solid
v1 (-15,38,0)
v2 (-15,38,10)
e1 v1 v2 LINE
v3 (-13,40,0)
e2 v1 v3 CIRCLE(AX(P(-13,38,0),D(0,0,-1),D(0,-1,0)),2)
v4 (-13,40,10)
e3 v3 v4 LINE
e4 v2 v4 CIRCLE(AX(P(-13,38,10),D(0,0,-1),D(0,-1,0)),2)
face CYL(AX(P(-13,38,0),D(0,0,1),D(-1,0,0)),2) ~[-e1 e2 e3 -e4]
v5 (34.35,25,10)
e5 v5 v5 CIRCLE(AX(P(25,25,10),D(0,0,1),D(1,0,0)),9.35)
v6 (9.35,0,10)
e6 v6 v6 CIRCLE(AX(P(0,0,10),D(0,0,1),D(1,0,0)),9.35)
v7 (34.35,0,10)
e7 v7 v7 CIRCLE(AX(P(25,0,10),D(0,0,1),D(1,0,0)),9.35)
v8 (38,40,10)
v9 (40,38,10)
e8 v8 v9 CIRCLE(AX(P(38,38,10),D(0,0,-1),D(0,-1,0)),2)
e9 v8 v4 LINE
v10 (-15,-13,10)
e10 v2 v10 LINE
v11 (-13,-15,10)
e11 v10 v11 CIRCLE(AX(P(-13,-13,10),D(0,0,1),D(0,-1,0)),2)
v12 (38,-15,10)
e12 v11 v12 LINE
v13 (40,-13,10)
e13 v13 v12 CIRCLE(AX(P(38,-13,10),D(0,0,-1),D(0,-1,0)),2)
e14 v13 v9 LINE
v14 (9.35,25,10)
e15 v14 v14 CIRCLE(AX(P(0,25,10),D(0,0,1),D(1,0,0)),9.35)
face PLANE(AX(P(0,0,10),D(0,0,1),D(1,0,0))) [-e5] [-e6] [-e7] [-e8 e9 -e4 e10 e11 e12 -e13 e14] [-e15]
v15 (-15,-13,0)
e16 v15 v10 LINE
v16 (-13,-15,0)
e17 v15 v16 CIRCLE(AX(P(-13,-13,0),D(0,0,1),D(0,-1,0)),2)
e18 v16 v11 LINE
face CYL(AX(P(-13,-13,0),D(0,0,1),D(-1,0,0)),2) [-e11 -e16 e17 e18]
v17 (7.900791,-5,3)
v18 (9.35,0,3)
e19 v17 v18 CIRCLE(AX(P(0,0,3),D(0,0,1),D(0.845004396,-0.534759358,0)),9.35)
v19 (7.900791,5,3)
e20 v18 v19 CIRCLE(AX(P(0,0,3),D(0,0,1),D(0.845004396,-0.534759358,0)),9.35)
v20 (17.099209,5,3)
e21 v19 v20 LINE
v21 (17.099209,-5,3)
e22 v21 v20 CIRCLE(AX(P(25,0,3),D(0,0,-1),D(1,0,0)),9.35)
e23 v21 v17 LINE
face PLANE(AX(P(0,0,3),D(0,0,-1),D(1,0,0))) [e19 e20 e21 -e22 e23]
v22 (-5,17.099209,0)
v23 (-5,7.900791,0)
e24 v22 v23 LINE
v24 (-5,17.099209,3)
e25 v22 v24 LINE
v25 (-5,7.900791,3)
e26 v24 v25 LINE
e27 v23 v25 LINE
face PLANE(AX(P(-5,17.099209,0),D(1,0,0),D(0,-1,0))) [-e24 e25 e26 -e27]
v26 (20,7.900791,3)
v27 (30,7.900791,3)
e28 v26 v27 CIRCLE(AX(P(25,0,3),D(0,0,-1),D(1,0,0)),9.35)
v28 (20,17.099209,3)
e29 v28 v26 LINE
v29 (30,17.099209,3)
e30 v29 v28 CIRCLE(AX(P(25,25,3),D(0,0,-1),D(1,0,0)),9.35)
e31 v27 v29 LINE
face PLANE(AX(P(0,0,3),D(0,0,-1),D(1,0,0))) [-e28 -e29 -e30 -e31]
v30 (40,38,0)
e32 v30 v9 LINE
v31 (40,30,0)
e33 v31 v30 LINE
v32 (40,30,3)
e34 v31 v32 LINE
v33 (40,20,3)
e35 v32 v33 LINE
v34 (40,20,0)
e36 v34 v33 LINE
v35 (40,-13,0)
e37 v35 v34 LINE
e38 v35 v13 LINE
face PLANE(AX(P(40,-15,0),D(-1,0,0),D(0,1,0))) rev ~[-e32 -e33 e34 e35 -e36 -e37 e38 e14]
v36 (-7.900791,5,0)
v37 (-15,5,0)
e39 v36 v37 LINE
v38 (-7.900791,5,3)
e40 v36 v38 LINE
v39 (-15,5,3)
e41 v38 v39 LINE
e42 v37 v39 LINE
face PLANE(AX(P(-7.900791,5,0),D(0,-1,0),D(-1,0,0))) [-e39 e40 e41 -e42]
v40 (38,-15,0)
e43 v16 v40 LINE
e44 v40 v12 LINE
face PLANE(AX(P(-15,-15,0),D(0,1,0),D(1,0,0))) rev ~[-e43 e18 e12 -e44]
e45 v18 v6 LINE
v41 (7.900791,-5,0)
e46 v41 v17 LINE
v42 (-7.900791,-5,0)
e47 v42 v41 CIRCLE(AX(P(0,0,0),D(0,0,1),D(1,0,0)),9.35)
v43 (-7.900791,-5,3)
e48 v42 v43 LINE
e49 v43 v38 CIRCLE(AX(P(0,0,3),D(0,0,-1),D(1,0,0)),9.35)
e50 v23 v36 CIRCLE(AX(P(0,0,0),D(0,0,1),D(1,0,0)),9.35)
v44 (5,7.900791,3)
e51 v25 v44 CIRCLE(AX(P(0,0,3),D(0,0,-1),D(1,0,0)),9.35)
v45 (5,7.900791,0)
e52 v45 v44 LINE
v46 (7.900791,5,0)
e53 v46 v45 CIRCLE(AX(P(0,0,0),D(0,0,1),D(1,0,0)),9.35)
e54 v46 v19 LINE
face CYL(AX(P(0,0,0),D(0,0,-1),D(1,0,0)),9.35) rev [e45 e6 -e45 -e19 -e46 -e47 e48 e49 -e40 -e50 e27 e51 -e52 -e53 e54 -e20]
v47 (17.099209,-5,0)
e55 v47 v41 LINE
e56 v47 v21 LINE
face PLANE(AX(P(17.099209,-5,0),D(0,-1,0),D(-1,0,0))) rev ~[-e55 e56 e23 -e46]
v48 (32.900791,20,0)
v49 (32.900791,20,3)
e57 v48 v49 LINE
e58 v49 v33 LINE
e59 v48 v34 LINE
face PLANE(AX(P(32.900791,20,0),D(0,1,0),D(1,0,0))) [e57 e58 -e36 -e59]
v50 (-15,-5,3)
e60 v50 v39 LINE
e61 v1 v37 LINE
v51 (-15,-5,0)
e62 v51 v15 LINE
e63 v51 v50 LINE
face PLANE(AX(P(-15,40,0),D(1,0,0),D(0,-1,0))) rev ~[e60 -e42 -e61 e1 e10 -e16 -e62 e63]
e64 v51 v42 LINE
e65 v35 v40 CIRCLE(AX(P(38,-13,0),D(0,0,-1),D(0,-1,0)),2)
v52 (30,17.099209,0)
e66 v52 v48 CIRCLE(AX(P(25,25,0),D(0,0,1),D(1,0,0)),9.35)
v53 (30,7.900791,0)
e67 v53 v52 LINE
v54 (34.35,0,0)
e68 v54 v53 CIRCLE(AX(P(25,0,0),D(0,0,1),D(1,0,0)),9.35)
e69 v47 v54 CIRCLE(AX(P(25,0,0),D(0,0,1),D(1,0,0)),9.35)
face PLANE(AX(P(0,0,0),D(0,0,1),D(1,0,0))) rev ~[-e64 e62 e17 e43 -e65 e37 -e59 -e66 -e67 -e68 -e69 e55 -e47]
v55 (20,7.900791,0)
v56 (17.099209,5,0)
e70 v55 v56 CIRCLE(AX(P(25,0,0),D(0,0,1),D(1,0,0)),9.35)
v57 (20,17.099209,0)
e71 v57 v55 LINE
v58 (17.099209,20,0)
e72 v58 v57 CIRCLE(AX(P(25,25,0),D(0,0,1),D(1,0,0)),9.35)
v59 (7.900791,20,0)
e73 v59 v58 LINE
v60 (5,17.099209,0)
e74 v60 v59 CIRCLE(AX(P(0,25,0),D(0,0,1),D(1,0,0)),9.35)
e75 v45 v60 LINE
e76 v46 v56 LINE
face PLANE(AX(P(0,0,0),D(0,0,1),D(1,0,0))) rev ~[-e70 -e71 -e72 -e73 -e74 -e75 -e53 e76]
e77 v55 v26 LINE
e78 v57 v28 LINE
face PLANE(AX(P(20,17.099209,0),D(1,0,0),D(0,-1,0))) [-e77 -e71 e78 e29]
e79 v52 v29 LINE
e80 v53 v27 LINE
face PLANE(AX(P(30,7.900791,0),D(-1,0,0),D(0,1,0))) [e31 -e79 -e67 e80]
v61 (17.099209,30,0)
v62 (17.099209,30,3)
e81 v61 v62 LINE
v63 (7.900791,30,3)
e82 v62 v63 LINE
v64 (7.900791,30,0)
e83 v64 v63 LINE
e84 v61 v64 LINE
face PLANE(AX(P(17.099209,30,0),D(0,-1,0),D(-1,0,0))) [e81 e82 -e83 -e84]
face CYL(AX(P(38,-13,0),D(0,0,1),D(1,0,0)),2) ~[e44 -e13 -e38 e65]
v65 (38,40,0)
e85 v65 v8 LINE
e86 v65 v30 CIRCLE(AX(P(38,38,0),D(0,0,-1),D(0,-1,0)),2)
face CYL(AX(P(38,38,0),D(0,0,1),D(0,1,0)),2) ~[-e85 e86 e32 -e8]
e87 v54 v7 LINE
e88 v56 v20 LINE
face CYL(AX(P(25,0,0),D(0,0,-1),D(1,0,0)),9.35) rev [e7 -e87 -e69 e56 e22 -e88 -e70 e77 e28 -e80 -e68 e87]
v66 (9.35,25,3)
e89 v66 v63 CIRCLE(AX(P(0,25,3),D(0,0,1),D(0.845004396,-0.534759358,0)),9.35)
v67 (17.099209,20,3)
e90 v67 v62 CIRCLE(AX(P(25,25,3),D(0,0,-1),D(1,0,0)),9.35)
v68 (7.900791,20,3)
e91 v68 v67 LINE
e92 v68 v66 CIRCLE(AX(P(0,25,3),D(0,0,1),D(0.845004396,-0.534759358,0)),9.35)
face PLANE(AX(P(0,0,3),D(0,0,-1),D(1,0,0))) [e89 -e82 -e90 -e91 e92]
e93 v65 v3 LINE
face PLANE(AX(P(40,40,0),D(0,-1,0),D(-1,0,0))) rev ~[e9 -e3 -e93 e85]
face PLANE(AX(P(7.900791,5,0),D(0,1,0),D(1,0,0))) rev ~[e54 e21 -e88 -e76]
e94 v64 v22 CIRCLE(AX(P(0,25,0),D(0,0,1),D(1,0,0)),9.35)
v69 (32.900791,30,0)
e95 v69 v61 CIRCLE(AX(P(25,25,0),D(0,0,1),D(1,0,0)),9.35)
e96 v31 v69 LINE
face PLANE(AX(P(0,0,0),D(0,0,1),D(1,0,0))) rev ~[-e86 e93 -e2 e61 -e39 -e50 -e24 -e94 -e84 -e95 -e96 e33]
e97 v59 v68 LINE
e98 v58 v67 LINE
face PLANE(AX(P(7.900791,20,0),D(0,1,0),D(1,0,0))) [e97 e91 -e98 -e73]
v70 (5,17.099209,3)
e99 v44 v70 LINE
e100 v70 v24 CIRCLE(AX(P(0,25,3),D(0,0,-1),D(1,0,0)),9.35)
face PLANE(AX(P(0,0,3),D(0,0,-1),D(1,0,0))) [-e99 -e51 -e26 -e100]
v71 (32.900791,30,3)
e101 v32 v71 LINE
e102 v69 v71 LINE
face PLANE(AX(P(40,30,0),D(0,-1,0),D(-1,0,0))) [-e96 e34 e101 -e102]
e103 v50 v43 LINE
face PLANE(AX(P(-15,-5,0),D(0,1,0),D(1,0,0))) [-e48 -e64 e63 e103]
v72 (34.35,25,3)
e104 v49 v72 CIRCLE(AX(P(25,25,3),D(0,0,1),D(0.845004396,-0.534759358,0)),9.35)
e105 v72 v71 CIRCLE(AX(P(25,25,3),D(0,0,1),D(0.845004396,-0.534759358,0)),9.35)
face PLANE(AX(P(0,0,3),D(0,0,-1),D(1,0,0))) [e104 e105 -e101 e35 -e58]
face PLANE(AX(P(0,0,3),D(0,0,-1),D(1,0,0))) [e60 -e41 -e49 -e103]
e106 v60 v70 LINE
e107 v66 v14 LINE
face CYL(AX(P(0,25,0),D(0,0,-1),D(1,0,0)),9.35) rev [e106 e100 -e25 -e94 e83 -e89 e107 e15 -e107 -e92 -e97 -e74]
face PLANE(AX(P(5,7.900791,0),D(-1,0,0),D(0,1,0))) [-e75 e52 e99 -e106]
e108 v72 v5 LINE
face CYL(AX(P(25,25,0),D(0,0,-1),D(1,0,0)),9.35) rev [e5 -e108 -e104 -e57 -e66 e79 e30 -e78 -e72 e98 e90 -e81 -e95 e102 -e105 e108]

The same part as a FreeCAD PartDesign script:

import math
import FreeCAD as App
import Part
import Sketcher
from FreeCAD import Vector


def edges_at(feature, points):
    """Names of the edges that pass closest to the given points."""
    edges = feature.Shape.Edges
    near = lambda p: min(range(len(edges)), key=lambda i: edges[i].distToShape(Part.Vertex(*p))[0])
    return sorted({f"Edge{near(p) + 1}" for p in points})

doc = App.newDocument("Part")
body = doc.addObject("PartDesign::Body", "Body")

# Sketch on XY plane
sketch1 = body.newObject("Sketcher::SketchObject", "Sketch")
sketch1.AttachmentSupport = (doc.getObject("XY_Plane"), [""])
sketch1.MapMode = "FlatFace"
sketch1.addGeometry([
    Part.LineSegment(Vector(-15, 40, 0), Vector(-15, -15, 0)),  # 0
    Part.LineSegment(Vector(-15, -15, 0), Vector(40, -15, 0)),  # 1
    Part.LineSegment(Vector(40, -15, 0), Vector(40, 40, 0)),  # 2
    Part.LineSegment(Vector(40, 40, 0), Vector(-15, 40, 0)),  # 3
    Part.Circle(Vector(0, 0, 0), Vector(0, 0, 1), 9.35),  # 4
    Part.Circle(Vector(25, 0, 0), Vector(0, 0, 1), 9.35),  # 5
    Part.Circle(Vector(0, 25, 0), Vector(0, 0, 1), 9.35),  # 6
    Part.Circle(Vector(25, 25, 0), Vector(0, 0, 1), 9.35),  # 7
], False)
sketch1.addConstraint([
    Sketcher.Constraint("Coincident", 0, 2, 1, 1),
    Sketcher.Constraint("Coincident", 1, 2, 2, 1),
    Sketcher.Constraint("Coincident", 2, 2, 3, 1),
    Sketcher.Constraint("Coincident", 3, 2, 0, 1),
    Sketcher.Constraint("Vertical", 0),
    Sketcher.Constraint("Horizontal", 1),
    Sketcher.Constraint("Vertical", 2),
    Sketcher.Constraint("Horizontal", 3),
    Sketcher.Constraint("Coincident", 4, 3, -1, 1),
    Sketcher.Constraint("Equal", 4, 5),
    Sketcher.Constraint("Equal", 5, 6),
    Sketcher.Constraint("Equal", 6, 7),
    Sketcher.Constraint("PointOnObject", 5, 3, -1),
    Sketcher.Constraint("PointOnObject", 6, 3, -2),
    Sketcher.Constraint("Horizontal", 6, 3, 7, 3),
    Sketcher.Constraint("Vertical", 5, 3, 7, 3),
    Sketcher.Constraint("Equal", 3, 0),
    Sketcher.Constraint("Diameter", 4, 18.7),
    Sketcher.Constraint("DistanceX", -1, 1, 5, 3, 25.0),
    Sketcher.Constraint("DistanceY", -1, 1, 6, 3, 25.0),
    Sketcher.Constraint("DistanceX", 1, 1, 1, 2, 55.0),
    Sketcher.Constraint("DistanceX", 0, 2, -1, 1, 15.0),
    Sketcher.Constraint("DistanceY", 0, 2, -1, 1, 15.0),
])
pad1 = body.newObject("PartDesign::Pad", "Pad")
pad1.Profile = sketch1
pad1.Length = 10
doc.recompute()

fillet = body.newObject("PartDesign::Fillet", "Fillet")
fillet.Base = (pad1, edges_at(pad1, [
    (-15, -15, 5),
    (-15, 40, 5),
    (40, -15, 5),
    (40, 40, 5),
]))
fillet.Radius = 2

# Sketch on XY plane
sketch2 = body.newObject("Sketcher::SketchObject", "Sketch001")
sketch2.AttachmentSupport = (doc.getObject("XY_Plane"), [""])
sketch2.MapMode = "FlatFace"
sketch2.addGeometry([
    Part.ArcOfCircle(Part.Circle(Vector(25, 0, 0), Vector(0, 0, 1), 9.35), math.radians(147.672407), math.radians(212.327593)),  # 0
    Part.LineSegment(Vector(17.099209, -5, 0), Vector(7.900791, -5, 0)),  # 1
    Part.ArcOfCircle(Part.Circle(Vector(0, 0, 0), Vector(0, 0, 1), 9.35), math.radians(-32.327593), math.radians(32.327593)),  # 2
    Part.LineSegment(Vector(7.900791, 5, 0), Vector(17.099209, 5, 0)),  # 3
    Part.LineSegment(Vector(30, 17.099209, 0), Vector(30, 7.900791, 0)),  # 4
    Part.ArcOfCircle(Part.Circle(Vector(25, 0, 0), Vector(0, 0, 1), 9.35), math.radians(57.672407), math.radians(122.327593)),  # 5
    Part.LineSegment(Vector(20, 7.900791, 0), Vector(20, 17.099209, 0)),  # 6
    Part.ArcOfCircle(Part.Circle(Vector(25, 25, 0), Vector(0, 0, 1), 9.35), math.radians(-122.327593), math.radians(-57.672407)),  # 7
    Part.ArcOfCircle(Part.Circle(Vector(0, 0, 0), Vector(0, 0, 1), 9.35), math.radians(147.672407), math.radians(212.327593)),  # 8
    Part.LineSegment(Vector(-7.900791, -5, 0), Vector(-15, -5, 0)),  # 9
    Part.LineSegment(Vector(-15, -5, 0), Vector(-15, 5, 0)),  # 10
    Part.LineSegment(Vector(-15, 5, 0), Vector(-7.900791, 5, 0)),  # 11
    Part.LineSegment(Vector(40, 20, 0), Vector(32.900791, 20, 0)),  # 12
    Part.ArcOfCircle(Part.Circle(Vector(25, 25, 0), Vector(0, 0, 1), 9.35), math.radians(-32.327593), math.radians(32.327593)),  # 13
    Part.LineSegment(Vector(32.900791, 30, 0), Vector(40, 30, 0)),  # 14
    Part.LineSegment(Vector(40, 30, 0), Vector(40, 20, 0)),  # 15
    Part.LineSegment(Vector(5, 17.099209, 0), Vector(5, 7.900791, 0)),  # 16
    Part.ArcOfCircle(Part.Circle(Vector(0, 0, 0), Vector(0, 0, 1), 9.35), math.radians(57.672407), math.radians(122.327593)),  # 17
    Part.LineSegment(Vector(-5, 7.900791, 0), Vector(-5, 17.099209, 0)),  # 18
    Part.ArcOfCircle(Part.Circle(Vector(0, 25, 0), Vector(0, 0, 1), 9.35), math.radians(-122.327593), math.radians(-57.672407)),  # 19
    Part.ArcOfCircle(Part.Circle(Vector(25, 25, 0), Vector(0, 0, 1), 9.35), math.radians(147.672407), math.radians(212.327593)),  # 20
    Part.LineSegment(Vector(17.099209, 20, 0), Vector(7.900791, 20, 0)),  # 21
    Part.ArcOfCircle(Part.Circle(Vector(0, 25, 0), Vector(0, 0, 1), 9.35), math.radians(-32.327593), math.radians(32.327593)),  # 22
    Part.LineSegment(Vector(7.900791, 30, 0), Vector(17.099209, 30, 0)),  # 23
], False)
sketch2.addConstraint([
    Sketcher.Constraint("Coincident", 0, 2, 1, 1),
    Sketcher.Constraint("Coincident", 1, 2, 2, 1),
    Sketcher.Constraint("Coincident", 2, 2, 3, 1),
    Sketcher.Constraint("Coincident", 3, 2, 0, 1),
    Sketcher.Constraint("Coincident", 4, 2, 5, 1),
    Sketcher.Constraint("Coincident", 5, 2, 6, 1),
    Sketcher.Constraint("Coincident", 6, 2, 7, 1),
    Sketcher.Constraint("Coincident", 7, 2, 4, 1),
    Sketcher.Constraint("Coincident", 8, 2, 9, 1),
    Sketcher.Constraint("Coincident", 9, 2, 10, 1),
    Sketcher.Constraint("Coincident", 10, 2, 11, 1),
    Sketcher.Constraint("Coincident", 11, 2, 8, 1),
    Sketcher.Constraint("Coincident", 12, 2, 13, 1),
    Sketcher.Constraint("Coincident", 13, 2, 14, 1),
    Sketcher.Constraint("Coincident", 14, 2, 15, 1),
    Sketcher.Constraint("Coincident", 15, 2, 12, 1),
    Sketcher.Constraint("Coincident", 16, 2, 17, 1),
    Sketcher.Constraint("Coincident", 17, 2, 18, 1),
    Sketcher.Constraint("Coincident", 18, 2, 19, 1),
    Sketcher.Constraint("Coincident", 19, 2, 16, 1),
    Sketcher.Constraint("Coincident", 20, 2, 21, 1),
    Sketcher.Constraint("Coincident", 21, 2, 22, 1),
    Sketcher.Constraint("Coincident", 22, 2, 23, 1),
    Sketcher.Constraint("Coincident", 23, 2, 20, 1),
    Sketcher.Constraint("Horizontal", 1),
    Sketcher.Constraint("Horizontal", 3),
    Sketcher.Constraint("Vertical", 4),
    Sketcher.Constraint("Vertical", 6),
    Sketcher.Constraint("Horizontal", 9),
    Sketcher.Constraint("Vertical", 10),
    Sketcher.Constraint("Horizontal", 11),
    Sketcher.Constraint("Horizontal", 12),
    Sketcher.Constraint("Horizontal", 14),
    Sketcher.Constraint("Vertical", 15),
    Sketcher.Constraint("Vertical", 16),
    Sketcher.Constraint("Vertical", 18),
    Sketcher.Constraint("Horizontal", 21),
    Sketcher.Constraint("Horizontal", 23),
    Sketcher.Constraint("Coincident", 2, 3, -1, 1),
    Sketcher.Constraint("Coincident", 8, 3, -1, 1),
    Sketcher.Constraint("Coincident", 17, 3, -1, 1),
    Sketcher.Constraint("Coincident", 5, 3, 0, 3),
    Sketcher.Constraint("Coincident", 13, 3, 7, 3),
    Sketcher.Constraint("Coincident", 20, 3, 7, 3),
    Sketcher.Constraint("Coincident", 22, 3, 19, 3),
    Sketcher.Constraint("Equal", 0, 2),
    Sketcher.Constraint("Equal", 2, 5),
    Sketcher.Constraint("Equal", 5, 7),
    Sketcher.Constraint("Equal", 7, 8),
    Sketcher.Constraint("Equal", 8, 13),
    Sketcher.Constraint("Equal", 13, 17),
    Sketcher.Constraint("Equal", 17, 19),
    Sketcher.Constraint("Equal", 19, 20),
    Sketcher.Constraint("Equal", 20, 22),
    Sketcher.Constraint("Symmetric", 18, 2, 19, 2, -2),
    Sketcher.Constraint("Symmetric", 0, 2, 3, 2, -1),
    Sketcher.Constraint("Horizontal", 13, 3, 19, 3),
    Sketcher.Constraint("Horizontal", 4, 2, 5, 2),
    Sketcher.Constraint("Horizontal", 6, 2, 7, 2),
    Sketcher.Constraint("Horizontal", 1, 2, 8, 2),
    Sketcher.Constraint("Horizontal", 3, 2, 10, 2),
    Sketcher.Constraint("Horizontal", 5, 2, 16, 2),
    Sketcher.Constraint("Horizontal", 15, 2, 20, 2),
    Sketcher.Constraint("Horizontal", 14, 2, 22, 2),
    Sketcher.Constraint("Vertical", 12, 2, 13, 2),
    Sketcher.Constraint("Vertical", 3, 2, 20, 2),
    Sketcher.Constraint("Equal", 11, 12),
    Sketcher.Constraint("Equal", 23, 4),
    Sketcher.Constraint("DistanceY", 10, 1, 10, 2, 10.0),
    Sketcher.Constraint("Radius", 0, 9.35),
    Sketcher.Constraint("DistanceX", -1, 1, 0, 3, 25.0),
    Sketcher.Constraint("DistanceY", -1, 1, 7, 3, 25.0),
    Sketcher.Constraint("DistanceX", 9, 2, -1, 1, 15.0),
])
pocket1 = body.newObject("PartDesign::Pocket", "Pocket")
pocket1.Profile = sketch2
pocket1.Length = 3
pocket1.Reversed = True

doc.recompute()
